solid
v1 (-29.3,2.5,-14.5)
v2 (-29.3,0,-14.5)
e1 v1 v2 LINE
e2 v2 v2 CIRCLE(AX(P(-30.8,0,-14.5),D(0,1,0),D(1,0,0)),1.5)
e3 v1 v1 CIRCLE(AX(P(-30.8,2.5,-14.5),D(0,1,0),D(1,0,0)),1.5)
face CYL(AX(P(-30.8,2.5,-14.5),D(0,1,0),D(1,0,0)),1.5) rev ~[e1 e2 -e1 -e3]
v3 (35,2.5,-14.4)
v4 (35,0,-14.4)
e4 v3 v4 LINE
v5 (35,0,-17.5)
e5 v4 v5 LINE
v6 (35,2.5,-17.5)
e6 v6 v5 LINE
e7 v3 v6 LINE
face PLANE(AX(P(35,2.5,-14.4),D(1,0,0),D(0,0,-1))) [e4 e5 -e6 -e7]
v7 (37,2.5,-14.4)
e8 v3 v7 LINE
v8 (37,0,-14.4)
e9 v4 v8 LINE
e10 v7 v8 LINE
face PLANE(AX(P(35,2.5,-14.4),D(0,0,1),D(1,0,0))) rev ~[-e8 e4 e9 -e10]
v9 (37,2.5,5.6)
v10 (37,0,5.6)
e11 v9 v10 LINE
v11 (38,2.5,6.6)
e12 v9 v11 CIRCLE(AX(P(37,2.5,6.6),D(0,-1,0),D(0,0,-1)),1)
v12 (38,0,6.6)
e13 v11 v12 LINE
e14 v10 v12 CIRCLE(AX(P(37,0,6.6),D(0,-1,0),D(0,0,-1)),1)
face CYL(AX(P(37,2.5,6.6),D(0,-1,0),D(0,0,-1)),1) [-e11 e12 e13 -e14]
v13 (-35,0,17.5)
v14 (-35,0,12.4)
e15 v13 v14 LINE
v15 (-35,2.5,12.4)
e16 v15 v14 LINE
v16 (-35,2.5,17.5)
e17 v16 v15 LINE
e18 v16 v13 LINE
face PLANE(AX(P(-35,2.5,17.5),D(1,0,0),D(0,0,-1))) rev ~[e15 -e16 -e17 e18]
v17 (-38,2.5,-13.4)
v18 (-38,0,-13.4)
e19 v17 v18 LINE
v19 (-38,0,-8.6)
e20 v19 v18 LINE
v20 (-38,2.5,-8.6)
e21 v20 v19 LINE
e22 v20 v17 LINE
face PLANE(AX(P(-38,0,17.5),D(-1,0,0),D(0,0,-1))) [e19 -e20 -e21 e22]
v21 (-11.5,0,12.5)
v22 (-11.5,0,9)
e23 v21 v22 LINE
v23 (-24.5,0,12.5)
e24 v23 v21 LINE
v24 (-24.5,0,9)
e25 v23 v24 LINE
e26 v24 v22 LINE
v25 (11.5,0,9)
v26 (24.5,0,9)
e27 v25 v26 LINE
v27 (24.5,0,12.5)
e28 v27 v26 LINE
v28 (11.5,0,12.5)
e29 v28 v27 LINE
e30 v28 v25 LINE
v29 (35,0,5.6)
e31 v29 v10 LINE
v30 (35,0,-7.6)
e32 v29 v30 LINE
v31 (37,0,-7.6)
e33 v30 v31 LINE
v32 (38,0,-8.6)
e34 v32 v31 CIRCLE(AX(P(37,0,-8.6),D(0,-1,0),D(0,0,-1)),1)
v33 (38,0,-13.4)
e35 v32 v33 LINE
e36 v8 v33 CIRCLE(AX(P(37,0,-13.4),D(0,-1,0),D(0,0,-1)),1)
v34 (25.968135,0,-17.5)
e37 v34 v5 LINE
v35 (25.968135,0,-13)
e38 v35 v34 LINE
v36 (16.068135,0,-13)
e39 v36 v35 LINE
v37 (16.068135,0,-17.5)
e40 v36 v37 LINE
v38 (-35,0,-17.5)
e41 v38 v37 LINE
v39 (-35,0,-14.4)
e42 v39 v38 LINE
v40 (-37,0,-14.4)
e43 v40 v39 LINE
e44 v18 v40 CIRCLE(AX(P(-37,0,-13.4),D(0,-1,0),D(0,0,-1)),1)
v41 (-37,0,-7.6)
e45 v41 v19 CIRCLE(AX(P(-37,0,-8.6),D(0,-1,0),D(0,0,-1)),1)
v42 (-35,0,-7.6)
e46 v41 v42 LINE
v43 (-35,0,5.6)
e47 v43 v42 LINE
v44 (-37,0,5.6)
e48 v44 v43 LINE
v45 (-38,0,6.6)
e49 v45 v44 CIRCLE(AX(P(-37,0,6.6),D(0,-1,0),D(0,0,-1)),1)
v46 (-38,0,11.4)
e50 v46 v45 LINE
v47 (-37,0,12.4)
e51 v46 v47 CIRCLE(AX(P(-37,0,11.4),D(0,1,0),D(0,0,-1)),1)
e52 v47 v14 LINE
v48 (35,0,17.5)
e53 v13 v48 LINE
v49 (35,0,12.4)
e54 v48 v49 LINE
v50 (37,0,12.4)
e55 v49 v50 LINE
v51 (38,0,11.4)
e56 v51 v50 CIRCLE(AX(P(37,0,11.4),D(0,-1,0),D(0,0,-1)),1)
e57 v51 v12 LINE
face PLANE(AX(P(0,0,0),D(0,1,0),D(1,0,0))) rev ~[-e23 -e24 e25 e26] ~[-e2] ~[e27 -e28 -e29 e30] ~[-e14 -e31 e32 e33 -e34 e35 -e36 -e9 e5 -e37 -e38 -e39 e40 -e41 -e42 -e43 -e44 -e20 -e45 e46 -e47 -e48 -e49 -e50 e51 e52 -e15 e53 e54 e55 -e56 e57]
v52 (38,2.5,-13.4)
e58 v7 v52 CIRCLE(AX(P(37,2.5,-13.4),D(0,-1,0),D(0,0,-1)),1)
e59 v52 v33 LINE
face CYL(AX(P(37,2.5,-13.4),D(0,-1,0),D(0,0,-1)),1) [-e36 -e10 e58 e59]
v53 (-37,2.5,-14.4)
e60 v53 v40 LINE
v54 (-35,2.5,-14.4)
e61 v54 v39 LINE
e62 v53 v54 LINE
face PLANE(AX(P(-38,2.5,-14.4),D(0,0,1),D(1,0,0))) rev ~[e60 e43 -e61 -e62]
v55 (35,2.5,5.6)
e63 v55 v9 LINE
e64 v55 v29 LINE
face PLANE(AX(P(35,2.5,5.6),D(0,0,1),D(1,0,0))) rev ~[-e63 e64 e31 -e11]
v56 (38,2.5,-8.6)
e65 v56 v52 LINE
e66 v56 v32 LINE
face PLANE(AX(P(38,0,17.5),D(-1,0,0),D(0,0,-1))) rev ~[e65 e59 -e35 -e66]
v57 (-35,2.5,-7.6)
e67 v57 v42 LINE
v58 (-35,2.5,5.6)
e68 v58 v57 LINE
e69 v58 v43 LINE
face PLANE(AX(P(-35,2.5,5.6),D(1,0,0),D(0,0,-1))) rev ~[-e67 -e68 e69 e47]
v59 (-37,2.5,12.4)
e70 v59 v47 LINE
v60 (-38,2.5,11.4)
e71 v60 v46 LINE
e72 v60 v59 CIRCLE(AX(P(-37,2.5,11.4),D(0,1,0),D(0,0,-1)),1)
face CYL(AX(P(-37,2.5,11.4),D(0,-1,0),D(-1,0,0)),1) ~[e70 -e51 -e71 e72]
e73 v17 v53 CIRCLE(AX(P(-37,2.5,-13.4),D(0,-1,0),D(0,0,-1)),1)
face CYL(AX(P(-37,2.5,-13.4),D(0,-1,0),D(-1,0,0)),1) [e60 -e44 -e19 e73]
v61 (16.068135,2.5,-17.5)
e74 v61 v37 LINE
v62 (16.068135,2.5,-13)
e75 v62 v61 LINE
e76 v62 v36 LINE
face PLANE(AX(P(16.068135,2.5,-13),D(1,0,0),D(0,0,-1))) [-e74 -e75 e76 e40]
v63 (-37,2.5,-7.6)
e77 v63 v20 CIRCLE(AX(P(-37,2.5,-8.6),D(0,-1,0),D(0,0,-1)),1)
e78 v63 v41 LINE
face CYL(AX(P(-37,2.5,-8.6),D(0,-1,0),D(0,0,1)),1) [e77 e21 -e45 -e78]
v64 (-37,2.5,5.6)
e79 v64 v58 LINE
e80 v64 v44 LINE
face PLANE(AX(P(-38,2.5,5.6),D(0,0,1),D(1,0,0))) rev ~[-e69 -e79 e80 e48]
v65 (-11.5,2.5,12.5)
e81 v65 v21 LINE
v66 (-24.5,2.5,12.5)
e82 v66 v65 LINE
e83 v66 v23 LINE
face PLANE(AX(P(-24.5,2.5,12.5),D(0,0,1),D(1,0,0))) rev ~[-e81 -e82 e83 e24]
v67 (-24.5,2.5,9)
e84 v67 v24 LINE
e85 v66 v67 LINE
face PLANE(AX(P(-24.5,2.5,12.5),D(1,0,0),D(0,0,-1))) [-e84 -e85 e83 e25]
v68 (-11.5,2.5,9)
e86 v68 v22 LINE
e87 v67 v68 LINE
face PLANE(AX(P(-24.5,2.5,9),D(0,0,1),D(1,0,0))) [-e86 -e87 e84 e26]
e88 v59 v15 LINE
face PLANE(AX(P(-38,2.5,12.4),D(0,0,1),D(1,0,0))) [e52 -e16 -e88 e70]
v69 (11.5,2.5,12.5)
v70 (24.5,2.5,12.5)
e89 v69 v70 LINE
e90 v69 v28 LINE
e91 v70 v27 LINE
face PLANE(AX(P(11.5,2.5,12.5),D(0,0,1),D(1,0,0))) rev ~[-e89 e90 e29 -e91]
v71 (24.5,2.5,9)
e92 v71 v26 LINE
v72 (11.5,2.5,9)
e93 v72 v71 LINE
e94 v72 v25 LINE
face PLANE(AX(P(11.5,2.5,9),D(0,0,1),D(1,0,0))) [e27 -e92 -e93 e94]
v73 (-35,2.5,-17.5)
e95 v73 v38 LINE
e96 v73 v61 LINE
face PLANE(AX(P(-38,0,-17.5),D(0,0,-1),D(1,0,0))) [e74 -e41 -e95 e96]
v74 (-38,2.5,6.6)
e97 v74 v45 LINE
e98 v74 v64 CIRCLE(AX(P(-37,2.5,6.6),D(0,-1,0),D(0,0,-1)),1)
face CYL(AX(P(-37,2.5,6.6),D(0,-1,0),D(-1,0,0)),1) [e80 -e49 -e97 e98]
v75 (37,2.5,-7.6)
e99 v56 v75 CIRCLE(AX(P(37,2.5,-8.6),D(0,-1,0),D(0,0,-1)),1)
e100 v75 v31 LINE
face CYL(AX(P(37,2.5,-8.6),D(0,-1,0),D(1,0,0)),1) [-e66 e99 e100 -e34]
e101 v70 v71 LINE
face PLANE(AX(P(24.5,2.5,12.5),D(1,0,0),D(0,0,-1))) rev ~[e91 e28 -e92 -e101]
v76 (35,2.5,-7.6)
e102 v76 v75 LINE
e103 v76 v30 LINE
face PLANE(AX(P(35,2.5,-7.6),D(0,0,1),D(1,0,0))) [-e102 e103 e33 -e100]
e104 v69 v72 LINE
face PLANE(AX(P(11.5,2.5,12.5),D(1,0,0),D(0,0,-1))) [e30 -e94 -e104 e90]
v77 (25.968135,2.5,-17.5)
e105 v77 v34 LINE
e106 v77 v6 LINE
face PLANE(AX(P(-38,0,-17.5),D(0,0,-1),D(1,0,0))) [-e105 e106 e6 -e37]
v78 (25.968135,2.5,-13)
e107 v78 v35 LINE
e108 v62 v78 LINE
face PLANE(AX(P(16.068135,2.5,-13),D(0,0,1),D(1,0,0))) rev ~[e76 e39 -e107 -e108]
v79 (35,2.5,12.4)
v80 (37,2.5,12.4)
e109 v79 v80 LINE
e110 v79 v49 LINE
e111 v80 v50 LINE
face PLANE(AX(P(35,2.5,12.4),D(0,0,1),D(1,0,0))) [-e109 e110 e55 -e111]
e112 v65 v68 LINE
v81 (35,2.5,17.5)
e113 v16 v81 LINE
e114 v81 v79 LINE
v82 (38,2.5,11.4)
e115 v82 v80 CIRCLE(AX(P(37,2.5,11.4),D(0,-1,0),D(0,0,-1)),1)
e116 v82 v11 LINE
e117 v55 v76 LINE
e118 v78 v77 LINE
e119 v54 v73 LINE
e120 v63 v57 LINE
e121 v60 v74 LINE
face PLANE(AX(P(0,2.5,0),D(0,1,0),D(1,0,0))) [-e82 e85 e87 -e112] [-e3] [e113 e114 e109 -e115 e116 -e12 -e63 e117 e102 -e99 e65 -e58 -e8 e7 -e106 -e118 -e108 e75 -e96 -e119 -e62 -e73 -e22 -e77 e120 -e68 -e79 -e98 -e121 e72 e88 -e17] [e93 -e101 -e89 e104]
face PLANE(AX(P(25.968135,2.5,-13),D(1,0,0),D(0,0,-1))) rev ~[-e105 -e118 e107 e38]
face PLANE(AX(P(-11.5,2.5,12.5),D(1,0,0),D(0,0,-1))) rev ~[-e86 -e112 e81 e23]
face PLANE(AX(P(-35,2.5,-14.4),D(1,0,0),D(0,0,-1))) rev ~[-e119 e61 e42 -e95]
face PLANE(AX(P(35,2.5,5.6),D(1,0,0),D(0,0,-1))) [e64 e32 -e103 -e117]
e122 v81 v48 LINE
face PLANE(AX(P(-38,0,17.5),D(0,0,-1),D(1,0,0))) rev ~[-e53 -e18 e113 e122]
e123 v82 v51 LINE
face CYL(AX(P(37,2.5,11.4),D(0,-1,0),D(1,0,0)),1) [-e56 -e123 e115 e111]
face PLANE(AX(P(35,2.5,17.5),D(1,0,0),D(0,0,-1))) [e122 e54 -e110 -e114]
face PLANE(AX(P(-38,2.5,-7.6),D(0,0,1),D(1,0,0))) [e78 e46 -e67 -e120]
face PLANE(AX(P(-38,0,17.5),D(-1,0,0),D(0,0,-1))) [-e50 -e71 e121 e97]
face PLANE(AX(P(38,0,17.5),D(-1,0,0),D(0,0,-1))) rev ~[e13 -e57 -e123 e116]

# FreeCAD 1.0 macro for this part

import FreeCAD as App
import Part
import Sketcher
from FreeCAD import Vector


def edges_at(feature, points):
    """Names of the edges that pass closest to the given points."""
    edges = feature.Shape.Edges
    near = lambda p: min(range(len(edges)), key=lambda i: edges[i].distToShape(Part.Vertex(*p))[0])
    return sorted({f"Edge{near(p) + 1}" for p in points})


def add_polygon(sketch, points):
    """Adds a closed chain of lines whose ends are joined by coincident constraints."""
    first, n = sketch.GeometryCount, len(points)
    for a, b in zip(points, points[1:] + points[:1]):
        sketch.addGeometry(Part.LineSegment(App.Vector(*a, 0), App.Vector(*b, 0)), False)
    for i in range(n):
        sketch.addConstraint(Sketcher.Constraint("Coincident", first + i, 2, first + (i + 1) % n, 1))

doc = App.newDocument("Part")
body = doc.addObject("PartDesign::Body", "Body")

sketch1 = body.newObject("Sketcher::SketchObject", "Sketch")
sketch1.AttachmentSupport = (doc.getObject("XZ_Plane"), [""])
sketch1.MapMode = "FlatFace"
add_polygon(sketch1, [(-38, -18), (-38, 18), (38, 18), (38, -18)])
sketch1.addConstraint(Sketcher.Constraint("Vertical", 0))
sketch1.addConstraint(Sketcher.Constraint("Horizontal", 1))
sketch1.addConstraint(Sketcher.Constraint("Vertical", 2))
sketch1.addConstraint(Sketcher.Constraint("Horizontal", 3))
sketch1.addConstraint(Sketcher.Constraint("Symmetric", 0, 2, 2, 2, -1, 1))
sketch1.addConstraint(Sketcher.Constraint("DistanceX", 1, 1, 1, 2, 76.0))
sketch1.addConstraint(Sketcher.Constraint("DistanceY", 0, 1, 0, 2, 35.0))
pad1 = body.newObject("PartDesign::Pad", "Pad")
pad1.Profile = sketch1
pad1.Length = 2.5
pad1.Reversed = True

sketch2 = body.newObject("Sketcher::SketchObject", "Sketch001")
sketch2.AttachmentSupport = (doc.getObject("XZ_Plane"), [""])
sketch2.MapMode = "FlatFace"
sketch2.AttachmentOffset = App.Placement(Vector(0, 0, -2.5), App.Rotation())
add_polygon(sketch2, [(-24.5, 9), (-24.5, 12.5), (-11.5, 12.5), (-11.5, 9)])
add_polygon(sketch2, [(11.5, 9), (11.5, 12.5), (24.5, 12.5), (24.5, 9)])
sketch2.addConstraint(Sketcher.Constraint("Vertical", 0))
sketch2.addConstraint(Sketcher.Constraint("Horizontal", 1))
sketch2.addConstraint(Sketcher.Constraint("Vertical", 2))
sketch2.addConstraint(Sketcher.Constraint("Horizontal", 3))
sketch2.addConstraint(Sketcher.Constraint("Vertical", 4))
sketch2.addConstraint(Sketcher.Constraint("Horizontal", 5))
sketch2.addConstraint(Sketcher.Constraint("Vertical", 6))
sketch2.addConstraint(Sketcher.Constraint("Horizontal", 7))
sketch2.addConstraint(Sketcher.Constraint("Symmetric", 1, 2, 4, 2, -2))
sketch2.addConstraint(Sketcher.Constraint("Symmetric", 3, 2, 6, 2, -2))
sketch2.addConstraint(Sketcher.Constraint("DistanceX", 1, 1, 1, 2, 13.0))
sketch2.addConstraint(Sketcher.Constraint("DistanceY", 0, 1, 0, 2, 3.5))
sketch2.addConstraint(Sketcher.Constraint("DistanceY", -1, 1, 2, 2, 9.0))
sketch2.addConstraint(Sketcher.Constraint("DistanceX", 1, 2, 4, 2, 23.0))
pocket1 = body.newObject("PartDesign::Pocket", "Pocket")
pocket1.Profile = sketch2
pocket1.Type = "ThroughAll"
pocket1.Reversed = True

sketch3 = body.newObject("Sketcher::SketchObject", "Sketch002")
sketch3.AttachmentSupport = (doc.getObject("XZ_Plane"), [""])
sketch3.MapMode = "FlatFace"
sketch3.AttachmentOffset = App.Placement(Vector(0, 0, -2.5), App.Rotation())
add_polygon(sketch3, [(-38, 12.4), (-38, 17.5), (-35, 17.5), (-35, 12.4)])
add_polygon(sketch3, [(-38, -17.5), (-38, -14.4), (-35, -14.4), (-35, -17.5)])
add_polygon(sketch3, [(-38, -7.6), (-38, 5.6), (-35, 5.6), (-35, -7.6)])
add_polygon(sketch3, [(35, 12.4), (35, 17.5), (38, 17.5), (38, 12.4)])
add_polygon(sketch3, [(35, -7.6), (35, 5.6), (38, 5.6), (38, -7.6)])
add_polygon(sketch3, [(35, -17.5), (35, -14.4), (38, -14.4), (38, -17.5)])
sketch3.addConstraint(Sketcher.Constraint("Vertical", 0))
sketch3.addConstraint(Sketcher.Constraint("Horizontal", 1))
sketch3.addConstraint(Sketcher.Constraint("Vertical", 2))
sketch3.addConstraint(Sketcher.Constraint("Horizontal", 3))
sketch3.addConstraint(Sketcher.Constraint("Vertical", 4))
sketch3.addConstraint(Sketcher.Constraint("Horizontal", 5))
sketch3.addConstraint(Sketcher.Constraint("Vertical", 6))
sketch3.addConstraint(Sketcher.Constraint("Horizontal", 7))
sketch3.addConstraint(Sketcher.Constraint("Vertical", 8))
sketch3.addConstraint(Sketcher.Constraint("Horizontal", 9))
sketch3.addConstraint(Sketcher.Constraint("Vertical", 10))
sketch3.addConstraint(Sketcher.Constraint("Horizontal", 11))
sketch3.addConstraint(Sketcher.Constraint("Vertical", 12))
sketch3.addConstraint(Sketcher.Constraint("Horizontal", 13))
sketch3.addConstraint(Sketcher.Constraint("Vertical", 14))
sketch3.addConstraint(Sketcher.Constraint("Horizontal", 15))
sketch3.addConstraint(Sketcher.Constraint("Vertical", 16))
sketch3.addConstraint(Sketcher.Constraint("Horizontal", 17))
sketch3.addConstraint(Sketcher.Constraint("Vertical", 18))
sketch3.addConstraint(Sketcher.Constraint("Horizontal", 19))
sketch3.addConstraint(Sketcher.Constraint("Vertical", 20))
sketch3.addConstraint(Sketcher.Constraint("Horizontal", 21))
sketch3.addConstraint(Sketcher.Constraint("Vertical", 22))
sketch3.addConstraint(Sketcher.Constraint("Horizontal", 23))
sketch3.addConstraint(Sketcher.Constraint("Symmetric", 6, 2, 12, 2, -1, 1))
sketch3.addConstraint(Sketcher.Constraint("Symmetric", 0, 2, 22, 2, -1, 1))
sketch3.addConstraint(Sketcher.Constraint("Symmetric", 1, 2, 12, 2, -2))
sketch3.addConstraint(Sketcher.Constraint("Symmetric", 3, 2, 14, 2, -2))
sketch3.addConstraint(Sketcher.Constraint("Symmetric", 9, 2, 16, 2, -2))
sketch3.addConstraint(Sketcher.Constraint("Symmetric", 11, 2, 18, 2, -2))
sketch3.addConstraint(Sketcher.Constraint("Symmetric", 5, 2, 20, 2, -2))
sketch3.addConstraint(Sketcher.Constraint("Vertical", 3, 2, 4, 2))
sketch3.addConstraint(Sketcher.Constraint("Vertical", 7, 2, 8, 2))
sketch3.addConstraint(Sketcher.Constraint("Vertical", 6, 2, 9, 2))
sketch3.addConstraint(Sketcher.Constraint("DistanceX", 1, 1, 1, 2, 3.0))
sketch3.addConstraint(Sketcher.Constraint("DistanceY", 0, 1, 0, 2, 5.1))
sketch3.addConstraint(Sketcher.Constraint("DistanceY", 4, 1, 4, 2, 3.1))
sketch3.addConstraint(Sketcher.Constraint("DistanceY", 8, 1, 8, 2, 13.2))
sketch3.addConstraint(Sketcher.Constraint("DistanceX", 0, 2, -1, 1, 38.0))
sketch3.addConstraint(Sketcher.Constraint("DistanceY", 6, 2, 1, 2, 35.0))
sketch3.addConstraint(Sketcher.Constraint("DistanceY", 4, 2, 8, 2, 20.0))
pocket2 = body.newObject("PartDesign::Pocket", "Pocket001")
pocket2.Profile = sketch3
pocket2.Type = "ThroughAll"
pocket2.Reversed = True
doc.recompute()

fillet = body.newObject("PartDesign::Fillet", "Fillet")
fillet.Base = (pocket2, edges_at(pocket2, [
    (38, 1.25, -7.6),
    (38, 1.25, 5.6),
    (38, 1.25, -14.4),
    (-38, 1.25, 12.4),
    (-38, 1.25, -14.4),
    (-38, 1.25, 5.6),
    (-38, 1.25, -7.6),
    (38, 1.25, 12.4),
]))
fillet.Radius = 1

sketch4 = body.newObject("Sketcher::SketchObject", "Sketch003")
sketch4.AttachmentSupport = (doc.getObject("XZ_Plane"), [""])
sketch4.MapMode = "FlatFace"
sketch4.AttachmentOffset = App.Placement(Vector(0, 0, -2.5), App.Rotation())
sketch4.addGeometry(Part.Circle(Vector(-30.8, -14.5, 0), Vector(0, 0, 1), 1.5), False)
add_polygon(sketch4, [(16.1, -17.5), (16.1, -13), (26, -13), (26, -17.5)])
sketch4.addConstraint(Sketcher.Constraint("Vertical", 1))
sketch4.addConstraint(Sketcher.Constraint("Horizontal", 2))
sketch4.addConstraint(Sketcher.Constraint("Vertical", 3))
sketch4.addConstraint(Sketcher.Constraint("Horizontal", 4))
sketch4.addConstraint(Sketcher.Constraint("Diameter", 0, 3.0))
sketch4.addConstraint(Sketcher.Constraint("DistanceX", 2, 1, 2, 2, 9.9))
sketch4.addConstraint(Sketcher.Constraint("DistanceY", 1, 1, 1, 2, 4.5))
sketch4.addConstraint(Sketcher.Constraint("DistanceY", 1, 2, -1, 1, 13.0))
sketch4.addConstraint(Sketcher.Constraint("DistanceY", 3, 2, 0, 3, 3.0))
sketch4.addConstraint(Sketcher.Constraint("DistanceX", 0, 3, -1, 1, 30.8))
sketch4.addConstraint(Sketcher.Constraint("DistanceX", -1, 1, 1, 2, 16.068135))
pocket3 = body.newObject("PartDesign::Pocket", "Pocket002")
pocket3.Profile = sketch4
pocket3.Type = "ThroughAll"
pocket3.Reversed = True

doc.recompute()
